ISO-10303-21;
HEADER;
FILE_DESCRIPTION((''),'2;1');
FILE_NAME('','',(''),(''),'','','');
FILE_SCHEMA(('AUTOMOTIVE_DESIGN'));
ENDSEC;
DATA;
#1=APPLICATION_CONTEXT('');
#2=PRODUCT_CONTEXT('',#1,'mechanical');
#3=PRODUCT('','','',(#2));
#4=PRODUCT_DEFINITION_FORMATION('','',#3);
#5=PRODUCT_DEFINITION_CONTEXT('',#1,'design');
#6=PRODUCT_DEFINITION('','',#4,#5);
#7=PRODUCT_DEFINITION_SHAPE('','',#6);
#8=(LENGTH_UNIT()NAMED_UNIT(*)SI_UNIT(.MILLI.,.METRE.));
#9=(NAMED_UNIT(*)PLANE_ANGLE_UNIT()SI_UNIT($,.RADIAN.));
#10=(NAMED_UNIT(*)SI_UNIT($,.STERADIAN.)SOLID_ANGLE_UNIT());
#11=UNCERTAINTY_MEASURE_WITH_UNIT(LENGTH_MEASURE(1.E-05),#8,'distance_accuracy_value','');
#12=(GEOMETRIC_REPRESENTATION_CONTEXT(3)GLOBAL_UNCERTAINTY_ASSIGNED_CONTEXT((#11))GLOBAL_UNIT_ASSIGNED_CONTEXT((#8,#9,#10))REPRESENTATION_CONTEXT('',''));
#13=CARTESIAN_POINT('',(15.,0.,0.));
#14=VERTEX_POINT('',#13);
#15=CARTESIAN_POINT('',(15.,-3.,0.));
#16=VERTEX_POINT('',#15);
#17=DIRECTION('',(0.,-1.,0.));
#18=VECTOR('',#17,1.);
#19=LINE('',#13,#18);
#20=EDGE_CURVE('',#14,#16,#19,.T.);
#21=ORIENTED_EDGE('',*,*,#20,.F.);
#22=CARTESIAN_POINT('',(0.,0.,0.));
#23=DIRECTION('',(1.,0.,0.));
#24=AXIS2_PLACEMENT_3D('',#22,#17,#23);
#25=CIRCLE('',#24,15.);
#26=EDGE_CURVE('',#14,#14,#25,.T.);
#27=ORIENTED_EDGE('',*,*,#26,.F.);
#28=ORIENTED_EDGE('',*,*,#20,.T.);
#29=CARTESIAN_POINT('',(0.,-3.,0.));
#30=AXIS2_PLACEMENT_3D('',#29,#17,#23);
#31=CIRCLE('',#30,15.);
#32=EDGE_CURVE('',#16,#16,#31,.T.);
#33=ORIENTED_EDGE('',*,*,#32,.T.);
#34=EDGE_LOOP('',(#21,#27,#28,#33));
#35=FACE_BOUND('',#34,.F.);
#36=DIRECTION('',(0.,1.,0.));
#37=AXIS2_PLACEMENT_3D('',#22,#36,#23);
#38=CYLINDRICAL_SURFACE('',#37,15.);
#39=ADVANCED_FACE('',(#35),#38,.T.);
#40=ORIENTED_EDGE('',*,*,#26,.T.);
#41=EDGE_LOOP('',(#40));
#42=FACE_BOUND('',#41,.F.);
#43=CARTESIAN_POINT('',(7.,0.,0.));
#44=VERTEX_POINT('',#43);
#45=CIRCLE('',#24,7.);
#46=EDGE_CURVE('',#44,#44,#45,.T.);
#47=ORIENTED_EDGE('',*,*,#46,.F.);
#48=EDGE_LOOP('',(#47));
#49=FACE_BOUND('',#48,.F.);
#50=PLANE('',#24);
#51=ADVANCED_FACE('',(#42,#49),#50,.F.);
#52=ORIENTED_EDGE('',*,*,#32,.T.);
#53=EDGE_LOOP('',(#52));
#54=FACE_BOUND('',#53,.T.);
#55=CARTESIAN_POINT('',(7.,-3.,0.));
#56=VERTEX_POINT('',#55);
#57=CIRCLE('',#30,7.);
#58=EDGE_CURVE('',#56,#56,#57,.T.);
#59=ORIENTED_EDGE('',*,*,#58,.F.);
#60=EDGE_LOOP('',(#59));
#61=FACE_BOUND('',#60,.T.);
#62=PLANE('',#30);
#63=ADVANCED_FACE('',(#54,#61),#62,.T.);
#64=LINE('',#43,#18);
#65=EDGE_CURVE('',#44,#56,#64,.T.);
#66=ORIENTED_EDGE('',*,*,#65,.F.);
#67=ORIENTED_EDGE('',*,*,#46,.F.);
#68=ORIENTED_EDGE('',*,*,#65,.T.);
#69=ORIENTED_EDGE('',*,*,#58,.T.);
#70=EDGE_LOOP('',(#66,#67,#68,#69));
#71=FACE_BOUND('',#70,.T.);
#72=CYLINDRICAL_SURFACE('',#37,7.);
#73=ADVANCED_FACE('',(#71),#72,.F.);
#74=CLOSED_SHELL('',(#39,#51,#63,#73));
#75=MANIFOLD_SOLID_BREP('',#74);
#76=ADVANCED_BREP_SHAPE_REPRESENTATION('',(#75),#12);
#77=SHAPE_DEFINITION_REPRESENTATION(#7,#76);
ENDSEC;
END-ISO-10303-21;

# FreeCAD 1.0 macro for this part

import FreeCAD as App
import Part
import Sketcher
Q = App.Units.Quantity

doc = App.newDocument("Part")
params = doc.addObject("Spreadsheet::Sheet", "Params")
for row, (alias, value) in enumerate([
    ("sketch1_diameter", "30 mm"),
    ("sketch1_diameter2", "14 mm"),
    ("pad1_length", "3 mm"),
], start=1):
    params.set(f"A{row}", alias)
    params.set(f"B{row}", "=" + value)
    params.setAlias(f"B{row}", alias)

body = doc.addObject("PartDesign::Body", "Body")

sketch1 = body.newObject("Sketcher::SketchObject", "Sketch")
sketch1.AttachmentSupport = (doc.getObject("XZ_Plane"), [""])
sketch1.MapMode = "FlatFace"
sketch1.addGeometry([
    Part.Circle(App.Vector(0, 0, 0), App.Vector(0, 0, 1), 15),
    Part.Circle(App.Vector(0, 0, 0), App.Vector(0, 0, 1), 7),
], False)
sketch1.addConstraint([
    Sketcher.Constraint("Coincident", 0, 3, -1, 1),
    Sketcher.Constraint("Coincident", 1, 3, -1, 1),
    Sketcher.Constraint("Diameter", 0, Q("30 mm")),
    Sketcher.Constraint("Diameter", 1, Q("14 mm")),
])
sketch1.setExpression("Constraints[2]", "Params.sketch1_diameter")
sketch1.setExpression("Constraints[3]", "Params.sketch1_diameter2")
pad1 = body.newObject("PartDesign::Pad", "Pad")
pad1.Profile = sketch1
pad1.setExpression("Length", "Params.pad1_length")

doc.recompute()
